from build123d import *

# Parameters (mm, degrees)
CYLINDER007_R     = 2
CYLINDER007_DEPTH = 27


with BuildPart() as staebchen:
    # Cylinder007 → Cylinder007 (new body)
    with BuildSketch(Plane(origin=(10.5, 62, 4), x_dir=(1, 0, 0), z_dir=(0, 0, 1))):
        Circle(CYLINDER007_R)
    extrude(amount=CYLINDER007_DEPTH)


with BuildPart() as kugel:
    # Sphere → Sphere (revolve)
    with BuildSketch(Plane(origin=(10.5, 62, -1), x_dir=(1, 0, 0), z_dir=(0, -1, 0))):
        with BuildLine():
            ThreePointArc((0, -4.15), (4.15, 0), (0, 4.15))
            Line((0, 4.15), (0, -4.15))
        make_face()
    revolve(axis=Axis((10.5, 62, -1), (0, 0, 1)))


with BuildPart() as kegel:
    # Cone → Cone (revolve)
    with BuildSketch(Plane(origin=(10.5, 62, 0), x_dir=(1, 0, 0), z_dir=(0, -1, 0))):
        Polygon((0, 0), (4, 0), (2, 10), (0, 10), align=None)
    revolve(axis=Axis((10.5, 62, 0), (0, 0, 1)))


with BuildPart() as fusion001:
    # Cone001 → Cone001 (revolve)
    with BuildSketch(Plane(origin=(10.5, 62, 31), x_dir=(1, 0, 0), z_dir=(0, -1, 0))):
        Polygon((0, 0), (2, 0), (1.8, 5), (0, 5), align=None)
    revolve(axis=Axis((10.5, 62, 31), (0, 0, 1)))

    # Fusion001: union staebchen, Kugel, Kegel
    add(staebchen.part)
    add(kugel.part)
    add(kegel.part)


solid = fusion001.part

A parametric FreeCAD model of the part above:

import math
import FreeCAD as App
import Part
import Sketcher
Q = App.Units.Quantity


def add_polygon(sketch, points):
    """Adds a closed chain of lines whose ends are joined by coincident constraints."""
    first, n = sketch.GeometryCount, len(points)
    for a, b in zip(points, points[1:] + points[:1]):
        sketch.addGeometry(Part.LineSegment(App.Vector(*a, 0), App.Vector(*b, 0)), False)
    for i in range(n):
        sketch.addConstraint(Sketcher.Constraint("Coincident", first + i, 2, first + (i + 1) % n, 1))

doc = App.newDocument("Part")
body = doc.addObject("PartDesign::Body", "Body")

# Sketch on XY plane
sketch1 = body.newObject("Sketcher::SketchObject", "Sketch")
sketch1.AttachmentSupport = (doc.getObject("XY_Plane"), [""])
sketch1.MapMode = "FlatFace"
sketch1.AttachmentOffset = App.Placement(App.Vector(0, 0, 4), App.Rotation())
sketch1.addGeometry(Part.Circle(App.Vector(10.5, 62, 0), App.Vector(0, 0, 1), 2), False)
sketch1.addConstraint([
    Sketcher.Constraint("Diameter", 0, Q("4 mm")),
    Sketcher.Constraint("DistanceY", -1, 1, 0, 3, Q("62 mm")),
    Sketcher.Constraint("DistanceX", -1, 1, 0, 3, Q("10.5 mm")),
])
pad1 = body.newObject("PartDesign::Pad", "Pad")
pad1.Profile = sketch1
pad1.Length = 27
body2 = doc.addObject("PartDesign::Body", "Body001")

# Sketch on XZ plane
sketch2 = body2.newObject("Sketcher::SketchObject", "Sketch001")
sketch2.AttachmentSupport = (doc.getObject("XZ_Plane001"), [""])
sketch2.MapMode = "FlatFace"
sketch2.AttachmentOffset = App.Placement(App.Vector(0, 0, -62), App.Rotation())
sketch2.addGeometry([
    Part.ArcOfCircle(Part.Circle(App.Vector(10.5, -1, 0), App.Vector(0, 0, 1), 4.15), math.radians(-90), math.radians(90)),
    Part.LineSegment(App.Vector(10.5, 3.15, 0), App.Vector(10.5, -5.15, 0)),
], False)
sketch2.addGeometry(Part.LineSegment(App.Vector(10.5, -5.15, 0), App.Vector(10.5, 3.15, 0)), True)  # axis
sketch2.addConstraint([
    Sketcher.Constraint("Coincident", 0, 1, 1, 2),
    Sketcher.Constraint("Coincident", 1, 1, 0, 2),
    Sketcher.Constraint("Vertical", 1),
    Sketcher.Constraint("Vertical", 2),
    Sketcher.Constraint("Coincident", 2, 1, 0, 1),
    Sketcher.Constraint("Equal", 1, 2),
    Sketcher.Constraint("Radius", 0, Q("4.15 mm")),
    Sketcher.Constraint("DistanceY", 0, 3, -1, 1, Q("1 mm")),
    Sketcher.Constraint("DistanceX", -1, 1, 0, 3, Q("10.5 mm")),
    Sketcher.Constraint("DistanceX", -1, 1, 0, 1, Q("10.5 mm")),
])
revolution = body2.newObject("PartDesign::Revolution", "Revolution")
revolution.Profile = sketch2
revolution.ReferenceAxis = (sketch2, ["Axis0"])
revolution.Angle = 360
body3 = doc.addObject("PartDesign::Body", "Body002")

# Sketch on XZ plane
sketch3 = body3.newObject("Sketcher::SketchObject", "Sketch002")
sketch3.AttachmentSupport = (doc.getObject("XZ_Plane002"), [""])
sketch3.MapMode = "FlatFace"
sketch3.AttachmentOffset = App.Placement(App.Vector(0, 0, -62), App.Rotation())
add_polygon(sketch3, [(10.5, 0), (14.5, 0), (12.5, 10), (10.5, 10)])  # lines 0-3
sketch3.addGeometry(Part.LineSegment(App.Vector(10.5, 0, 0), App.Vector(10.5, 10, 0)), True)  # axis
sketch3.addConstraint([
    Sketcher.Constraint("Horizontal", 0),
    Sketcher.Constraint("Horizontal", 2),
    Sketcher.Constraint("Vertical", 3),
    Sketcher.Constraint("Vertical", 4),
    Sketcher.Constraint("Coincident", 4, 1, 3, 2),
    Sketcher.Constraint("PointOnObject", 0, 2, -1),
    Sketcher.Constraint("Horizontal", 1, 2, 4, 2),
    Sketcher.Constraint("DistanceX", 0, 1, 0, 2, Q("4 mm")),
    Sketcher.Constraint("DistanceX", 2, 2, 2, 1, Q("2 mm")),
    Sketcher.Constraint("DistanceY", 3, 2, 3, 1, Q("10 mm")),
    Sketcher.Constraint("DistanceX", -1, 1, 0, 2, Q("14.5 mm")),
])
revolution2 = body3.newObject("PartDesign::Revolution", "Revolution001")
revolution2.Profile = sketch3
revolution2.ReferenceAxis = (sketch3, ["Axis0"])
revolution2.Angle = 360
body4 = doc.addObject("PartDesign::Body", "Body003")
body4.AllowCompound = True

# Sketch on XZ plane
sketch4 = body4.newObject("Sketcher::SketchObject", "Sketch003")
sketch4.AttachmentSupport = (doc.getObject("XZ_Plane003"), [""])
sketch4.MapMode = "FlatFace"
sketch4.AttachmentOffset = App.Placement(App.Vector(0, 0, -62), App.Rotation())
add_polygon(sketch4, [(10.5, 31), (12.5, 31), (12.3, 36), (10.5, 36)])  # lines 0-3
sketch4.addGeometry(Part.LineSegment(App.Vector(10.5, 31, 0), App.Vector(10.5, 36, 0)), True)  # axis
sketch4.addConstraint([
    Sketcher.Constraint("Horizontal", 0),
    Sketcher.Constraint("Horizontal", 2),
    Sketcher.Constraint("Vertical", 3),
    Sketcher.Constraint("Vertical", 4),
    Sketcher.Constraint("Coincident", 4, 1, 3, 2),
    Sketcher.Constraint("Horizontal", 1, 2, 4, 2),
    Sketcher.Constraint("DistanceX", 0, 1, 0, 2, Q("2 mm")),
    Sketcher.Constraint("DistanceY", 3, 2, 3, 1, Q("5 mm")),
    Sketcher.Constraint("DistanceX", 2, 2, 2, 1, Q("1.8 mm")),
    Sketcher.Constraint("DistanceY", -1, 1, 0, 2, Q("31 mm")),
    Sketcher.Constraint("DistanceX", -1, 1, 0, 2, Q("12.5 mm")),
])
revolution3 = body4.newObject("PartDesign::Revolution", "Revolution002")
revolution3.Profile = sketch4
revolution3.ReferenceAxis = (sketch4, ["Axis0"])
revolution3.Angle = 360
doc.recompute()

boolean = body4.newObject("PartDesign::Boolean", "Boolean")
boolean.Type = "Fuse"
boolean.addObjects([body])
doc.recompute()

boolean2 = body4.newObject("PartDesign::Boolean", "Boolean001")
boolean2.Type = "Fuse"
boolean2.addObjects([body2])
doc.recompute()

boolean3 = body4.newObject("PartDesign::Boolean", "Boolean002")
boolean3.Type = "Fuse"
boolean3.addObjects([body3])

doc.recompute()
